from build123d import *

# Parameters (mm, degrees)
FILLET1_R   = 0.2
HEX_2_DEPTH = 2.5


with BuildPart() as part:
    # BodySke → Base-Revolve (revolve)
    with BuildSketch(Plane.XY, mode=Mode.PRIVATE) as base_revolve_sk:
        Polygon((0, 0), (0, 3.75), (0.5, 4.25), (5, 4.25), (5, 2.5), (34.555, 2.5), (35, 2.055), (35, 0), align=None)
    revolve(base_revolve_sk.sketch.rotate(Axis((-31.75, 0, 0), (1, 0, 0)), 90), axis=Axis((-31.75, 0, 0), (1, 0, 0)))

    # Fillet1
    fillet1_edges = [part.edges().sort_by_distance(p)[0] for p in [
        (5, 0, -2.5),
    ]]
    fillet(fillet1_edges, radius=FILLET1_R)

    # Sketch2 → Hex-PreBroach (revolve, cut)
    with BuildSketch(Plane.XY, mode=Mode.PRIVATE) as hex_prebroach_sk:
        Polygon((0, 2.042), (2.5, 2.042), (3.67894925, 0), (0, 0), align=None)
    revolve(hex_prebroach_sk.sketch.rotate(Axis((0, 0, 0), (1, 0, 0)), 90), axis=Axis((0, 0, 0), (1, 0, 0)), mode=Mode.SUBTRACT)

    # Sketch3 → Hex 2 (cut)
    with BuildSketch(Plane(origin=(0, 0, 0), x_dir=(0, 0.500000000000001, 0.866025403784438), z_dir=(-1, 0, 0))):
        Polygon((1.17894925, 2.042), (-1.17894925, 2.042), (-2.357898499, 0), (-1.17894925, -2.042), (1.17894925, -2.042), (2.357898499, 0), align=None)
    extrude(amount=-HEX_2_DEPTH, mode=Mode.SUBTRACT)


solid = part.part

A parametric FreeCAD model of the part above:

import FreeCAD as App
import Part
import Sketcher
Q = App.Units.Quantity


def edges_at(feature, points):
    """Names of the edges that pass closest to the given points."""
    edges = feature.Shape.Edges
    near = lambda p: min(range(len(edges)), key=lambda i: edges[i].distToShape(Part.Vertex(*p))[0])
    return sorted({f"Edge{near(p) + 1}" for p in points})


def add_polygon(sketch, points):
    """Adds a closed chain of lines whose ends are joined by coincident constraints."""
    first, n = sketch.GeometryCount, len(points)
    for a, b in zip(points, points[1:] + points[:1]):
        sketch.addGeometry(Part.LineSegment(App.Vector(*a, 0), App.Vector(*b, 0)), False)
    for i in range(n):
        sketch.addConstraint(Sketcher.Constraint("Coincident", first + i, 2, first + (i + 1) % n, 1))

doc = App.newDocument("Part")
body = doc.addObject("PartDesign::Body", "Body")

# Sketch on XY plane
sketch1 = body.newObject("Sketcher::SketchObject", "Sketch")
sketch1.AttachmentSupport = (doc.getObject("XY_Plane"), [""])
sketch1.MapMode = "FlatFace"
add_polygon(sketch1, [(0, 3.8), (0, 0), (35, 0), (35, 2.1), (34.6, 2.5), (5, 2.5), (5, 4.2), (0.5, 4.2)])  # lines 0-7
sketch1.addConstraint([
    Sketcher.Constraint("Vertical", 0),
    Sketcher.Constraint("Horizontal", 1),
    Sketcher.Constraint("Vertical", 2),
    Sketcher.Constraint("Horizontal", 4),
    Sketcher.Constraint("Vertical", 5),
    Sketcher.Constraint("Horizontal", 6),
    Sketcher.Constraint("Coincident", 0, 2, -1, 1),
    Sketcher.Constraint("Perpendicular", 3, 7),
    Sketcher.Constraint("DistanceX", 1, 1, 1, 2, 35.0),
    Sketcher.Constraint("Angle", 3, Q("135 deg")),
    Sketcher.Constraint("DistanceX", 6, 2, 6, 1, 4.5),
    Sketcher.Constraint("DistanceX", -1, 1, 4, 2, 5.0),
    Sketcher.Constraint("DistanceY", 0, 2, 0, 1, 3.75),
    Sketcher.Constraint("DistanceY", 5, 1, 5, 2, 1.75),
    Sketcher.Constraint("DistanceX", 4, 2, 4, 1, 29.555),
])
revolution = body.newObject("PartDesign::Revolution", "Revolution")
revolution.Profile = sketch1
revolution.ReferenceAxis = (sketch1, ["H_Axis"])
revolution.Angle = 360
doc.recompute()

fillet = body.newObject("PartDesign::Fillet", "Fillet")
fillet.Base = (revolution, edges_at(revolution, [(5, 0, -2.5)]))
fillet.Radius = 0.2

# Sketch on XY plane
sketch2 = body.newObject("Sketcher::SketchObject", "Sketch001")
sketch2.AttachmentSupport = (doc.getObject("XY_Plane"), [""])
sketch2.MapMode = "FlatFace"
add_polygon(sketch2, [(2.5, 2), (0, 2), (0, 0), (3.7, 0)])  # lines 0-3
sketch2.addConstraint([
    Sketcher.Constraint("Horizontal", 0),
    Sketcher.Constraint("Vertical", 1),
    Sketcher.Constraint("Horizontal", 2),
    Sketcher.Constraint("Coincident", 1, 2, -1, 1),
    Sketcher.Constraint("Angle", 3, Q("120 deg")),
    Sketcher.Constraint("DistanceX", 0, 2, 0, 1, 2.5),
    Sketcher.Constraint("DistanceY", 1, 2, 1, 1, 2.042),
])
groove = body.newObject("PartDesign::Groove", "Groove")
groove.Profile = sketch2
groove.ReferenceAxis = (sketch2, ["H_Axis"])
groove.Angle = 360

# Sketch on YZ plane
sketch3 = body.newObject("Sketcher::SketchObject", "Sketch002")
sketch3.AttachmentSupport = (doc.getObject("YZ_Plane"), [""])
sketch3.MapMode = "FlatFace"
add_polygon(sketch3, [(2.4, 0), (1.2, -2), (-1.2, -2), (-2.4, 0), (-1.2, 2), (1.2, 2)])  # lines 0-5
sketch3.addConstraint([
    Sketcher.Constraint("Horizontal", 1),
    Sketcher.Constraint("Horizontal", 4),
    Sketcher.Constraint("Symmetric", 0, 2, 3, 2, -1, 1),
    Sketcher.Constraint("Symmetric", 2, 2, 5, 2, -1, 1),
    Sketcher.Constraint("PointOnObject", 2, 2, -1),
    Sketcher.Constraint("Parallel", 2, 5),
    Sketcher.Constraint("Vertical", 1, 2, 3, 2),
    Sketcher.Constraint("Angle", 0, Q("-120 deg")),
    Sketcher.Constraint("DistanceX", 1, 2, 1, 1, 2.357899),
    Sketcher.Constraint("DistanceY", 0, 2, -1, 1, 2.042),
])
pocket1 = body.newObject("PartDesign::Pocket", "Pocket")
pocket1.Profile = sketch3
pocket1.Length = 2.5
pocket1.Reversed = True

doc.recompute()
